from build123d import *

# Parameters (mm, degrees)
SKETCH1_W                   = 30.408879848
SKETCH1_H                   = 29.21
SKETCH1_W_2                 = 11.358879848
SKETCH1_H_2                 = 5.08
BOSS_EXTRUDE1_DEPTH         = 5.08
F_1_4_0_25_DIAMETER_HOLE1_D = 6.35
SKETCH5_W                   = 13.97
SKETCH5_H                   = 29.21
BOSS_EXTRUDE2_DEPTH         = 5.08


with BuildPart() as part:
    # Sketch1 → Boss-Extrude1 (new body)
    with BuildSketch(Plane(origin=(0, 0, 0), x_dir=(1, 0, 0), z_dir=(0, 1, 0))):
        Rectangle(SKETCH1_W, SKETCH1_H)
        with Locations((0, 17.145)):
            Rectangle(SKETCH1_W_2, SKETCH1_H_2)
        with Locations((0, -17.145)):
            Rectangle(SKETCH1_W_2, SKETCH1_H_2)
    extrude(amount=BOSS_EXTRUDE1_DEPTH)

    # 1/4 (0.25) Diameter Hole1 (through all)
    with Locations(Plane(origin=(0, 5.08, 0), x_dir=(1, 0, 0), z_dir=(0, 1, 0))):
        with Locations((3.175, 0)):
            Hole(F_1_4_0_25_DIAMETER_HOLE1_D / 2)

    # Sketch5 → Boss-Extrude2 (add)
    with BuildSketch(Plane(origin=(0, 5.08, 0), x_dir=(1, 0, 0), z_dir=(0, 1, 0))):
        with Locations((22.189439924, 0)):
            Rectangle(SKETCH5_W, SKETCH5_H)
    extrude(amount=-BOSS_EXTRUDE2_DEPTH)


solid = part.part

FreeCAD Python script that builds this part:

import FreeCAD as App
import Part
import Sketcher
from FreeCAD import Vector
Q = App.Units.Quantity


def add_polygon(sketch, points):
    """Adds a closed chain of lines whose ends are joined by coincident constraints."""
    first, n = sketch.GeometryCount, len(points)
    for a, b in zip(points, points[1:] + points[:1]):
        sketch.addGeometry(Part.LineSegment(App.Vector(*a, 0), App.Vector(*b, 0)), False)
    for i in range(n):
        sketch.addConstraint(Sketcher.Constraint("Coincident", first + i, 2, first + (i + 1) % n, 1))

doc = App.newDocument("Part")
params = doc.addObject("Spreadsheet::Sheet", "Params")
for row, (alias, value) in enumerate([
    ("sketch1_height", "0.2 in"),
    ("sketch1_height2", "1.15 in"),
    ("sketch1_width", "0.375 in"),
    ("pad1_length", "0.2 in"),
    ("sketch2_diameter", "0.25 in"),
    ("hole_diameter", "0.25 in"),
    ("sketch3_width", "0.55 in"),
    ("sketch3_height", "1.15 in"),
    ("pad2_length", "0.2 in"),
], start=1):
    params.set(f"A{row}", alias)
    params.set(f"B{row}", "=" + value)
    params.setAlias(f"B{row}", alias)

body = doc.addObject("PartDesign::Body", "Body")

# Sketch on XZ plane
sketch1 = body.newObject("Sketcher::SketchObject", "Sketch")
sketch1.AttachmentSupport = (doc.getObject("XZ_Plane"), [""])
sketch1.MapMode = "FlatFace"
add_polygon(sketch1, [(-15, -15), (-15, 15), (-6, 15), (-6, 20), (6, 20), (6, 15), (15, 15), (15, -15), (6, -15), (6, -20), (-6, -20), (-6, -15)])  # lines 0-11
sketch1.addConstraint(Sketcher.Constraint("Vertical", 0))
sketch1.addConstraint(Sketcher.Constraint("Horizontal", 1))
sketch1.addConstraint(Sketcher.Constraint("Vertical", 2))
sketch1.addConstraint(Sketcher.Constraint("Horizontal", 3))
sketch1.addConstraint(Sketcher.Constraint("Vertical", 4))
sketch1.addConstraint(Sketcher.Constraint("Horizontal", 5))
sketch1.addConstraint(Sketcher.Constraint("Vertical", 6))
sketch1.addConstraint(Sketcher.Constraint("Horizontal", 7))
sketch1.addConstraint(Sketcher.Constraint("Vertical", 8))
sketch1.addConstraint(Sketcher.Constraint("Horizontal", 9))
sketch1.addConstraint(Sketcher.Constraint("Vertical", 10))
sketch1.addConstraint(Sketcher.Constraint("Horizontal", 11))
sketch1.addConstraint(Sketcher.Constraint("Symmetric", 0, 2, 6, 2, -1, 1))
sketch1.addConstraint(Sketcher.Constraint("Symmetric", 2, 2, 8, 2, -1, 1))
sketch1.addConstraint(Sketcher.Constraint("Symmetric", 4, 2, 10, 2, -1, 1))
sketch1.addConstraint(Sketcher.Constraint("Symmetric", 1, 2, 4, 2, -2))
sketch1.addConstraint(Sketcher.Constraint("DistanceY", 2, 1, 2, 2, Q("0.2 in")))
sketch1.addConstraint(Sketcher.Constraint("DistanceY", 0, 1, 0, 2, Q("1.15 in")))
sketch1.addConstraint(Sketcher.Constraint("DistanceX", 1, 1, 1, 2, Q("0.375 in")))
sketch1.addConstraint(Sketcher.Constraint("DistanceX", 3, 1, 3, 2, Q("0.4472 in")))
sketch1.setExpression("Constraints[28]", "Params.sketch1_height")
sketch1.setExpression("Constraints[29]", "Params.sketch1_height2")
sketch1.setExpression("Constraints[30]", "Params.sketch1_width")
pad1 = body.newObject("PartDesign::Pad", "Pad")
pad1.Profile = sketch1
pad1.setExpression("Length", "Params.pad1_length")
pad1.Reversed = True

# Sketch on XZ plane
sketch2 = body.newObject("Sketcher::SketchObject", "Sketch001")
sketch2.AttachmentSupport = (doc.getObject("XZ_Plane"), [""])
sketch2.MapMode = "FlatFace"
sketch2.AttachmentOffset = App.Placement(Vector(0, 0, -0.2 * 25.4), App.Rotation())
sketch2.addGeometry(Part.Circle(Vector(3.2, 0, 0), Vector(0, 0, 1), 3.2), False)
sketch2.addConstraint(Sketcher.Constraint("PointOnObject", 0, 3, -1))
sketch2.addConstraint(Sketcher.Constraint("Diameter", 0, Q("0.25 in")))
sketch2.addConstraint(Sketcher.Constraint("DistanceX", -1, 1, 0, 3, Q("0.125 in")))
sketch2.setExpression("Constraints[1]", "Params.sketch2_diameter")
doc.recompute()
hole = body.newObject("PartDesign::Hole", "Hole")
hole.Profile = sketch2
hole.ThreadType = "None"
hole.setExpression("Diameter", "Params.hole_diameter")
hole.DepthType = "ThroughAll"
hole.Reversed = True

# Sketch on XZ plane
sketch3 = body.newObject("Sketcher::SketchObject", "Sketch002")
sketch3.AttachmentSupport = (doc.getObject("XZ_Plane"), [""])
sketch3.MapMode = "FlatFace"
sketch3.AttachmentOffset = App.Placement(Vector(0, 0, -0.2 * 25.4), App.Rotation())
add_polygon(sketch3, [(15, -15), (15, 15), (29, 15), (29, -15)])  # lines 0-3
sketch3.addConstraint(Sketcher.Constraint("Vertical", 0))
sketch3.addConstraint(Sketcher.Constraint("Horizontal", 1))
sketch3.addConstraint(Sketcher.Constraint("Vertical", 2))
sketch3.addConstraint(Sketcher.Constraint("Horizontal", 3))
sketch3.addConstraint(Sketcher.Constraint("DistanceX", 1, 1, 1, 2, Q("0.55 in")))
sketch3.addConstraint(Sketcher.Constraint("DistanceY", 0, 1, 0, 2, Q("1.15 in")))
sketch3.addConstraint(Sketcher.Constraint("DistanceY", -1, 1, 0, 2, Q("0.575 in")))
sketch3.addConstraint(Sketcher.Constraint("DistanceX", -1, 1, 0, 2, Q("0.5986 in")))
sketch3.setExpression("Constraints[8]", "Params.sketch3_width")
sketch3.setExpression("Constraints[9]", "Params.sketch3_height")
pad2 = body.newObject("PartDesign::Pad", "Pad001")
pad2.Profile = sketch3
pad2.setExpression("Length", "Params.pad2_length")

doc.recompute()
